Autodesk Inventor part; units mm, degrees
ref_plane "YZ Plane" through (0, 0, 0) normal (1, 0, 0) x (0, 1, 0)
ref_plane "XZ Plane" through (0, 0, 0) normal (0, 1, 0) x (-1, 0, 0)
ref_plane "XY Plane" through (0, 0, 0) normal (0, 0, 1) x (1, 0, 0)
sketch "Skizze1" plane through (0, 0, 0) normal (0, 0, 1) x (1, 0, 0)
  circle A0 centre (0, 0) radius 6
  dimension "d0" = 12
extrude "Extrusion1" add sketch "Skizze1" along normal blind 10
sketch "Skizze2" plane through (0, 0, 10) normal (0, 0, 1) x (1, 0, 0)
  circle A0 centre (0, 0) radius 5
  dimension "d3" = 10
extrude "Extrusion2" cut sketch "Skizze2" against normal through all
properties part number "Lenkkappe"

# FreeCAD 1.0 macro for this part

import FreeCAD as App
import Part
import Sketcher
Q = App.Units.Quantity

doc = App.newDocument("Part")
body = doc.addObject("PartDesign::Body", "Body")

# Sketch on XY plane
sketch1 = body.newObject("Sketcher::SketchObject", "Sketch")
sketch1.AttachmentSupport = (doc.getObject("XY_Plane"), [""])
sketch1.MapMode = "FlatFace"
sketch1.addGeometry(Part.Circle(App.Vector(0, 0, 0), App.Vector(0, 0, 1), 6), False)
sketch1.addConstraint(Sketcher.Constraint("Coincident", 0, 3, -1, 1))
sketch1.addConstraint(Sketcher.Constraint("Diameter", 0, Q("12 mm")))
pad1 = body.newObject("PartDesign::Pad", "Pad")
pad1.Profile = sketch1
pad1.Length = 10

# Sketch on XY plane
sketch2 = body.newObject("Sketcher::SketchObject", "Sketch001")
sketch2.AttachmentSupport = (doc.getObject("XY_Plane"), [""])
sketch2.MapMode = "FlatFace"
sketch2.AttachmentOffset = App.Placement(App.Vector(0, 0, 10), App.Rotation())
sketch2.addGeometry(Part.Circle(App.Vector(0, 0, 0), App.Vector(0, 0, 1), 5), False)
sketch2.addConstraint(Sketcher.Constraint("Coincident", 0, 3, -1, 1))
sketch2.addConstraint(Sketcher.Constraint("Diameter", 0, Q("10 mm")))
pocket1 = body.newObject("PartDesign::Pocket", "Pocket")
pocket1.Profile = sketch2
pocket1.Type = "ThroughAll"

doc.recompute()
